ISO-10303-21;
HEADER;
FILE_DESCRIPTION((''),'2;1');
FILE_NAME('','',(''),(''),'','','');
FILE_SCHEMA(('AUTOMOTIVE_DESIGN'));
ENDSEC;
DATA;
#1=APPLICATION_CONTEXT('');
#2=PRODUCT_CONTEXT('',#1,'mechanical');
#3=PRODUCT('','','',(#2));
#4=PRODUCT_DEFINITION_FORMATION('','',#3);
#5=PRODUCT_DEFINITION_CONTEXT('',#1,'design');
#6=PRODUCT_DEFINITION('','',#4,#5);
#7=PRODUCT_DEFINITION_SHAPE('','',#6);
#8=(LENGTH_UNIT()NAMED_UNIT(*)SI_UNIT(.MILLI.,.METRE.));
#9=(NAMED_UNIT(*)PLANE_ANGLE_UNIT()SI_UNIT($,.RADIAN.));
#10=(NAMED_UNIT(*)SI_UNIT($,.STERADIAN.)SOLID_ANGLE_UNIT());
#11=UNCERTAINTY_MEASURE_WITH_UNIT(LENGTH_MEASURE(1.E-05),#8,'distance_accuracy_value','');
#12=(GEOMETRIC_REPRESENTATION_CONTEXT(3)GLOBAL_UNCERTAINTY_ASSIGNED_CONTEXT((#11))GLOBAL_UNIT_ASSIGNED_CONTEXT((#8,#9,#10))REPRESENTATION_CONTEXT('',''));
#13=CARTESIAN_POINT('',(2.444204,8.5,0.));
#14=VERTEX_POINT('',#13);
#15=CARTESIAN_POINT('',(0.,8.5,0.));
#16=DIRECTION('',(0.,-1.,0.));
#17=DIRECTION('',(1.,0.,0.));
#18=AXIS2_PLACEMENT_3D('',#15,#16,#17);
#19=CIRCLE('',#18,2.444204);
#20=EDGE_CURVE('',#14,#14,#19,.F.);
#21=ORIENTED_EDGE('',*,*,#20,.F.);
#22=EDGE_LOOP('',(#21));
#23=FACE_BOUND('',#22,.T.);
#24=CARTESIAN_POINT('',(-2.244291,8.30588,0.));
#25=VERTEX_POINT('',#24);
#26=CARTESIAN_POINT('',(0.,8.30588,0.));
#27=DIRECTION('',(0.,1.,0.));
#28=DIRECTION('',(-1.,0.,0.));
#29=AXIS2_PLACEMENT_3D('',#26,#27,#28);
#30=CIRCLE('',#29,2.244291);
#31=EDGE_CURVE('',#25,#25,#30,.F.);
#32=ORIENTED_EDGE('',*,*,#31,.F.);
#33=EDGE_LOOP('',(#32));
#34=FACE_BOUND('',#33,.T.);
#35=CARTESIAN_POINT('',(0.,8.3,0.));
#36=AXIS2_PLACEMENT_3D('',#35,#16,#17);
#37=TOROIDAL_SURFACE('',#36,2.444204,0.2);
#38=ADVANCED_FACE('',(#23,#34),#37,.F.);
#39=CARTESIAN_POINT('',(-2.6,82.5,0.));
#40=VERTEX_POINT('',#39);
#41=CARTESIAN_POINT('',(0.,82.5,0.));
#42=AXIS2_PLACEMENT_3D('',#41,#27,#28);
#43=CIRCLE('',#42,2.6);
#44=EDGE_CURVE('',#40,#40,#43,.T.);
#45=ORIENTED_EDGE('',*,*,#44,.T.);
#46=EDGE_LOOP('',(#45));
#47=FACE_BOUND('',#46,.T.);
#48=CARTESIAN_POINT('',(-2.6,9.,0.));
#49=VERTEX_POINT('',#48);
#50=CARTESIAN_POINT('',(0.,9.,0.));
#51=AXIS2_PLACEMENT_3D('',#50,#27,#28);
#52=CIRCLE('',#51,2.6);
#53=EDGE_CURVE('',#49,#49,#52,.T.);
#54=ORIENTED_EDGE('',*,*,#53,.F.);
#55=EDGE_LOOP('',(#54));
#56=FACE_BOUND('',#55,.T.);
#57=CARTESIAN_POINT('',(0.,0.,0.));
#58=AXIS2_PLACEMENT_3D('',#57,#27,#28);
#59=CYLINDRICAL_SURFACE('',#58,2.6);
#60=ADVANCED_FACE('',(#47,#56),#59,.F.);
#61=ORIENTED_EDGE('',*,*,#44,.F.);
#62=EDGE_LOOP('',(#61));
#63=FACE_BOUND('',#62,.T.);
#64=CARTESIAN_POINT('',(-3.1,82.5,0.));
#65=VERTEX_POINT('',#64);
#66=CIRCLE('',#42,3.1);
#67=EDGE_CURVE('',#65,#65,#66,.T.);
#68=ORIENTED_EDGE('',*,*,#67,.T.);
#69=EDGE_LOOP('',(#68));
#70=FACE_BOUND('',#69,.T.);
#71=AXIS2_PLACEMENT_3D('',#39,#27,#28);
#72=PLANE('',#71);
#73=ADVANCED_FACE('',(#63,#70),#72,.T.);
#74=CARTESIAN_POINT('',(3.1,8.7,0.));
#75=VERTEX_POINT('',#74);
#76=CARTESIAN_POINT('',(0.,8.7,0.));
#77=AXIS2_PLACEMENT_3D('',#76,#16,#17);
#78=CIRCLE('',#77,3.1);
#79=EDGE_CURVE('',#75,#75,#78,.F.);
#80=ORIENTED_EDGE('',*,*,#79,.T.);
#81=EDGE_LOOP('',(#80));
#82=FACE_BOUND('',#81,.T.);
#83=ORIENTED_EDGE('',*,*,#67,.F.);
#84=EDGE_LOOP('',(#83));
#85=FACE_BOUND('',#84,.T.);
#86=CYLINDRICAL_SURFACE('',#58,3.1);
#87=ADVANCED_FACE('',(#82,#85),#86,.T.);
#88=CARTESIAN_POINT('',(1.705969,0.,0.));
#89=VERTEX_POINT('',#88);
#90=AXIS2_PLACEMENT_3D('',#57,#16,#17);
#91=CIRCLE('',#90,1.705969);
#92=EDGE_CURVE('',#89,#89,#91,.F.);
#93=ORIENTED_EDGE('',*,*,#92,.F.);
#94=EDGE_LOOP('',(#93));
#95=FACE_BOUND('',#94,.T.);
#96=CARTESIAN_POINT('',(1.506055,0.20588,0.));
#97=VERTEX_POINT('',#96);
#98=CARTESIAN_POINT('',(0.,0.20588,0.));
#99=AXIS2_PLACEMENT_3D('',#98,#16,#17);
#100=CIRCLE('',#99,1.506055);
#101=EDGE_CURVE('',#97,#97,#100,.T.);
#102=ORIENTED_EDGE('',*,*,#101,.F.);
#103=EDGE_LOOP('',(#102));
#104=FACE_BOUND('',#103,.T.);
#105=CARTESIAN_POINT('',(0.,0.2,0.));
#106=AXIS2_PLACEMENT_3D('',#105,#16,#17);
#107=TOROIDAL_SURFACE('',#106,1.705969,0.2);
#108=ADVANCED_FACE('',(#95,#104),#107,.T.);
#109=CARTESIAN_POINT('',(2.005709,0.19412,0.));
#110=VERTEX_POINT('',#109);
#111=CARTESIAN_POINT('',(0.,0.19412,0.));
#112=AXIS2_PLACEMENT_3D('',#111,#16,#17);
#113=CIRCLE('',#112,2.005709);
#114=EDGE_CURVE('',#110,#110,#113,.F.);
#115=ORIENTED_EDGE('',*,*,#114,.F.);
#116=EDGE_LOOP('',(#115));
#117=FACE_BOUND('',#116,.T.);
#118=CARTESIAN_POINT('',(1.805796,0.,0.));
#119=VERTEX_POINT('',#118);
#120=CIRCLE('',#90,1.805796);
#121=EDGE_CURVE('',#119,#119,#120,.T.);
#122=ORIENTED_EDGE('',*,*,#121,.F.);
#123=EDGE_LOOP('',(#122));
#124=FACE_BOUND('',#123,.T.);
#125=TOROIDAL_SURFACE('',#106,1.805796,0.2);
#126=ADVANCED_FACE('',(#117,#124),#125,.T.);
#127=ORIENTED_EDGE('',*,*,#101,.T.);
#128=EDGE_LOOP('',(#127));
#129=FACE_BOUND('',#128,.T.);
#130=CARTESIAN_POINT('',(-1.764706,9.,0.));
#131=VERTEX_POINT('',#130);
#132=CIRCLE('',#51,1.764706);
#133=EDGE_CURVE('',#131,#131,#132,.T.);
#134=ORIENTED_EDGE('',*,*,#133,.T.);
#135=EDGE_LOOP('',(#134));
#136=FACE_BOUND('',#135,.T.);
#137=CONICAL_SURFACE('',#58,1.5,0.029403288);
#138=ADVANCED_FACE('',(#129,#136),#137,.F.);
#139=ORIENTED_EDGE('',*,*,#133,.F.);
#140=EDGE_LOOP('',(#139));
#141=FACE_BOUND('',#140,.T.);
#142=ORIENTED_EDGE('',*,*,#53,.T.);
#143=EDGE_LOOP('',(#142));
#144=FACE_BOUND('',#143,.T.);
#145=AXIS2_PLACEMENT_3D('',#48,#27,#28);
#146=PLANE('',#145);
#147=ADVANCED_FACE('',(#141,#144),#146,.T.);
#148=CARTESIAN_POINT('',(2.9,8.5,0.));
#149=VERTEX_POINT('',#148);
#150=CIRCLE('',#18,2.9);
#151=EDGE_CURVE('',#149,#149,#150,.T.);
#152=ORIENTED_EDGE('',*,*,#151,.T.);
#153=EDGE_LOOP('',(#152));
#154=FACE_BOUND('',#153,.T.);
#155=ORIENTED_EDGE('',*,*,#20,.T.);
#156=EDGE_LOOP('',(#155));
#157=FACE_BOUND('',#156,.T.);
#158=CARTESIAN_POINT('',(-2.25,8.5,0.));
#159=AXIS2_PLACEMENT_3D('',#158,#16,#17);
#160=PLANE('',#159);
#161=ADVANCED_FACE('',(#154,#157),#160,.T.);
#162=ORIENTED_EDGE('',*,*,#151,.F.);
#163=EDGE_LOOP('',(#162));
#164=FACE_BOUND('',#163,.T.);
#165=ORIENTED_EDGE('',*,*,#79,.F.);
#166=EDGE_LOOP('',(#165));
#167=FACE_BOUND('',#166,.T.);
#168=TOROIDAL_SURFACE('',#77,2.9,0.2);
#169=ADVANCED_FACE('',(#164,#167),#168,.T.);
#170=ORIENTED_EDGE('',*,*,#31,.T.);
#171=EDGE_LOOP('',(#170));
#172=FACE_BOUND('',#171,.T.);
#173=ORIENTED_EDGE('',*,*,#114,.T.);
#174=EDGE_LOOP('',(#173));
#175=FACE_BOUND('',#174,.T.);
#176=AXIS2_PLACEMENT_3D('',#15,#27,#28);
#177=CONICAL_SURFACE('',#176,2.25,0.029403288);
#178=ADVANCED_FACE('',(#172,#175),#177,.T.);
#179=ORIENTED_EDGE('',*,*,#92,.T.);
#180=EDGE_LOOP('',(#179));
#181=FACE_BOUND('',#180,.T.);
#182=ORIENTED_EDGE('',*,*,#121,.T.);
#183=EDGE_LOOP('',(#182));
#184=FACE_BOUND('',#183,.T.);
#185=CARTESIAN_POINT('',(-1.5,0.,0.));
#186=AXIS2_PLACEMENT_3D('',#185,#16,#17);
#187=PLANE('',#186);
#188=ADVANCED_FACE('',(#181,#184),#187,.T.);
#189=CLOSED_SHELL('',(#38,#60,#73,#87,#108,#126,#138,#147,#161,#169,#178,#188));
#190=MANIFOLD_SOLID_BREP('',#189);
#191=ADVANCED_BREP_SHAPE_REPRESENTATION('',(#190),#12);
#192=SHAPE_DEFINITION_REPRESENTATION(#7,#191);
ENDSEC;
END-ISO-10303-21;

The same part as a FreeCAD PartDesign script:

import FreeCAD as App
import Part
import Sketcher

V = App.Vector


def edges_at(feature, points):
    """Names of the edges that pass closest to the given points."""
    edges = feature.Shape.Edges
    near = lambda p: min(range(len(edges)), key=lambda i: edges[i].distToShape(Part.Vertex(*p))[0])
    return sorted({f"Edge{near(p) + 1}" for p in points})

doc = App.newDocument("Part")
body = doc.addObject("PartDesign::Body", "Body")

# Sketch on XY plane
sketch1 = body.newObject("Sketcher::SketchObject", "Sketch")
sketch1.AttachmentSupport = (doc.getObject("XY_Plane"), [""])
sketch1.MapMode = "FlatFace"
sketch1.addGeometry([
    Part.LineSegment(V(-2.6, 82.5, 0), V(-3.1, 82.5, 0)),  # 0
    Part.LineSegment(V(-3.1, 82.5, 0), V(-3.1, 8.5, 0)),  # 1
    Part.LineSegment(V(-3.1, 8.5, 0), V(-2.2, 8.5, 0)),  # 2
    Part.LineSegment(V(-2.2, 8.5, 0), V(-2, 0, 0)),  # 3
    Part.LineSegment(V(-2, 0, 0), V(-1.5, 0, 0)),  # 4
    Part.LineSegment(V(-1.5, 0, 0), V(-1.8, 9, 0)),  # 5
    Part.LineSegment(V(-1.8, 9, 0), V(-2.6, 9, 0)),  # 6
    Part.LineSegment(V(-2.6, 9, 0), V(-2.6, 82.5, 0)),  # 7
], False)
sketch1.addConstraint([
    Sketcher.Constraint("Coincident", 0, 2, 1, 1),
    Sketcher.Constraint("Coincident", 1, 2, 2, 1),
    Sketcher.Constraint("Coincident", 2, 2, 3, 1),
    Sketcher.Constraint("Coincident", 3, 2, 4, 1),
    Sketcher.Constraint("Coincident", 4, 2, 5, 1),
    Sketcher.Constraint("Coincident", 5, 2, 6, 1),
    Sketcher.Constraint("Coincident", 6, 2, 7, 1),
    Sketcher.Constraint("Coincident", 7, 2, 0, 1),
    Sketcher.Constraint("Horizontal", 0),
    Sketcher.Constraint("Vertical", 1),
    Sketcher.Constraint("Horizontal", 2),
    Sketcher.Constraint("Horizontal", 4),
    Sketcher.Constraint("Horizontal", 6),
    Sketcher.Constraint("Vertical", 7),
    Sketcher.Constraint("PointOnObject", 3, 2, -1),
    Sketcher.Constraint("Parallel", 3, 5),
    Sketcher.Constraint("Equal", 0, 4),
    Sketcher.Constraint("DistanceY", 1, 2, 1, 1, 74.0),
    Sketcher.Constraint("DistanceX", 0, 2, 0, 1, 0.5),
    Sketcher.Constraint("DistanceY", 7, 1, 7, 2, 73.5),
    Sketcher.Constraint("DistanceX", 3, 2, -1, 1, 2.0),
    Sketcher.Constraint("DistanceY", -1, 1, 5, 2, 9.0),
    Sketcher.Constraint("DistanceX", 2, 1, 2, 2, 0.85),
    Sketcher.Constraint("DistanceX", 0, 2, -1, 1, 3.1),
])
revolution = body.newObject("PartDesign::Revolution", "Revolution")
revolution.Profile = sketch1
revolution.ReferenceAxis = (sketch1, ["V_Axis"])
revolution.Angle = 360
doc.recompute()

fillet = body.newObject("PartDesign::Fillet", "Fillet")
fillet.Base = (revolution, edges_at(revolution, [
    (1.5, 0, 0),
    (2, 0, 0),
    (2.25, 8.5, 0),
    (3.1, 8.5, 0),
]))
fillet.Radius = 0.2

doc.recompute()
